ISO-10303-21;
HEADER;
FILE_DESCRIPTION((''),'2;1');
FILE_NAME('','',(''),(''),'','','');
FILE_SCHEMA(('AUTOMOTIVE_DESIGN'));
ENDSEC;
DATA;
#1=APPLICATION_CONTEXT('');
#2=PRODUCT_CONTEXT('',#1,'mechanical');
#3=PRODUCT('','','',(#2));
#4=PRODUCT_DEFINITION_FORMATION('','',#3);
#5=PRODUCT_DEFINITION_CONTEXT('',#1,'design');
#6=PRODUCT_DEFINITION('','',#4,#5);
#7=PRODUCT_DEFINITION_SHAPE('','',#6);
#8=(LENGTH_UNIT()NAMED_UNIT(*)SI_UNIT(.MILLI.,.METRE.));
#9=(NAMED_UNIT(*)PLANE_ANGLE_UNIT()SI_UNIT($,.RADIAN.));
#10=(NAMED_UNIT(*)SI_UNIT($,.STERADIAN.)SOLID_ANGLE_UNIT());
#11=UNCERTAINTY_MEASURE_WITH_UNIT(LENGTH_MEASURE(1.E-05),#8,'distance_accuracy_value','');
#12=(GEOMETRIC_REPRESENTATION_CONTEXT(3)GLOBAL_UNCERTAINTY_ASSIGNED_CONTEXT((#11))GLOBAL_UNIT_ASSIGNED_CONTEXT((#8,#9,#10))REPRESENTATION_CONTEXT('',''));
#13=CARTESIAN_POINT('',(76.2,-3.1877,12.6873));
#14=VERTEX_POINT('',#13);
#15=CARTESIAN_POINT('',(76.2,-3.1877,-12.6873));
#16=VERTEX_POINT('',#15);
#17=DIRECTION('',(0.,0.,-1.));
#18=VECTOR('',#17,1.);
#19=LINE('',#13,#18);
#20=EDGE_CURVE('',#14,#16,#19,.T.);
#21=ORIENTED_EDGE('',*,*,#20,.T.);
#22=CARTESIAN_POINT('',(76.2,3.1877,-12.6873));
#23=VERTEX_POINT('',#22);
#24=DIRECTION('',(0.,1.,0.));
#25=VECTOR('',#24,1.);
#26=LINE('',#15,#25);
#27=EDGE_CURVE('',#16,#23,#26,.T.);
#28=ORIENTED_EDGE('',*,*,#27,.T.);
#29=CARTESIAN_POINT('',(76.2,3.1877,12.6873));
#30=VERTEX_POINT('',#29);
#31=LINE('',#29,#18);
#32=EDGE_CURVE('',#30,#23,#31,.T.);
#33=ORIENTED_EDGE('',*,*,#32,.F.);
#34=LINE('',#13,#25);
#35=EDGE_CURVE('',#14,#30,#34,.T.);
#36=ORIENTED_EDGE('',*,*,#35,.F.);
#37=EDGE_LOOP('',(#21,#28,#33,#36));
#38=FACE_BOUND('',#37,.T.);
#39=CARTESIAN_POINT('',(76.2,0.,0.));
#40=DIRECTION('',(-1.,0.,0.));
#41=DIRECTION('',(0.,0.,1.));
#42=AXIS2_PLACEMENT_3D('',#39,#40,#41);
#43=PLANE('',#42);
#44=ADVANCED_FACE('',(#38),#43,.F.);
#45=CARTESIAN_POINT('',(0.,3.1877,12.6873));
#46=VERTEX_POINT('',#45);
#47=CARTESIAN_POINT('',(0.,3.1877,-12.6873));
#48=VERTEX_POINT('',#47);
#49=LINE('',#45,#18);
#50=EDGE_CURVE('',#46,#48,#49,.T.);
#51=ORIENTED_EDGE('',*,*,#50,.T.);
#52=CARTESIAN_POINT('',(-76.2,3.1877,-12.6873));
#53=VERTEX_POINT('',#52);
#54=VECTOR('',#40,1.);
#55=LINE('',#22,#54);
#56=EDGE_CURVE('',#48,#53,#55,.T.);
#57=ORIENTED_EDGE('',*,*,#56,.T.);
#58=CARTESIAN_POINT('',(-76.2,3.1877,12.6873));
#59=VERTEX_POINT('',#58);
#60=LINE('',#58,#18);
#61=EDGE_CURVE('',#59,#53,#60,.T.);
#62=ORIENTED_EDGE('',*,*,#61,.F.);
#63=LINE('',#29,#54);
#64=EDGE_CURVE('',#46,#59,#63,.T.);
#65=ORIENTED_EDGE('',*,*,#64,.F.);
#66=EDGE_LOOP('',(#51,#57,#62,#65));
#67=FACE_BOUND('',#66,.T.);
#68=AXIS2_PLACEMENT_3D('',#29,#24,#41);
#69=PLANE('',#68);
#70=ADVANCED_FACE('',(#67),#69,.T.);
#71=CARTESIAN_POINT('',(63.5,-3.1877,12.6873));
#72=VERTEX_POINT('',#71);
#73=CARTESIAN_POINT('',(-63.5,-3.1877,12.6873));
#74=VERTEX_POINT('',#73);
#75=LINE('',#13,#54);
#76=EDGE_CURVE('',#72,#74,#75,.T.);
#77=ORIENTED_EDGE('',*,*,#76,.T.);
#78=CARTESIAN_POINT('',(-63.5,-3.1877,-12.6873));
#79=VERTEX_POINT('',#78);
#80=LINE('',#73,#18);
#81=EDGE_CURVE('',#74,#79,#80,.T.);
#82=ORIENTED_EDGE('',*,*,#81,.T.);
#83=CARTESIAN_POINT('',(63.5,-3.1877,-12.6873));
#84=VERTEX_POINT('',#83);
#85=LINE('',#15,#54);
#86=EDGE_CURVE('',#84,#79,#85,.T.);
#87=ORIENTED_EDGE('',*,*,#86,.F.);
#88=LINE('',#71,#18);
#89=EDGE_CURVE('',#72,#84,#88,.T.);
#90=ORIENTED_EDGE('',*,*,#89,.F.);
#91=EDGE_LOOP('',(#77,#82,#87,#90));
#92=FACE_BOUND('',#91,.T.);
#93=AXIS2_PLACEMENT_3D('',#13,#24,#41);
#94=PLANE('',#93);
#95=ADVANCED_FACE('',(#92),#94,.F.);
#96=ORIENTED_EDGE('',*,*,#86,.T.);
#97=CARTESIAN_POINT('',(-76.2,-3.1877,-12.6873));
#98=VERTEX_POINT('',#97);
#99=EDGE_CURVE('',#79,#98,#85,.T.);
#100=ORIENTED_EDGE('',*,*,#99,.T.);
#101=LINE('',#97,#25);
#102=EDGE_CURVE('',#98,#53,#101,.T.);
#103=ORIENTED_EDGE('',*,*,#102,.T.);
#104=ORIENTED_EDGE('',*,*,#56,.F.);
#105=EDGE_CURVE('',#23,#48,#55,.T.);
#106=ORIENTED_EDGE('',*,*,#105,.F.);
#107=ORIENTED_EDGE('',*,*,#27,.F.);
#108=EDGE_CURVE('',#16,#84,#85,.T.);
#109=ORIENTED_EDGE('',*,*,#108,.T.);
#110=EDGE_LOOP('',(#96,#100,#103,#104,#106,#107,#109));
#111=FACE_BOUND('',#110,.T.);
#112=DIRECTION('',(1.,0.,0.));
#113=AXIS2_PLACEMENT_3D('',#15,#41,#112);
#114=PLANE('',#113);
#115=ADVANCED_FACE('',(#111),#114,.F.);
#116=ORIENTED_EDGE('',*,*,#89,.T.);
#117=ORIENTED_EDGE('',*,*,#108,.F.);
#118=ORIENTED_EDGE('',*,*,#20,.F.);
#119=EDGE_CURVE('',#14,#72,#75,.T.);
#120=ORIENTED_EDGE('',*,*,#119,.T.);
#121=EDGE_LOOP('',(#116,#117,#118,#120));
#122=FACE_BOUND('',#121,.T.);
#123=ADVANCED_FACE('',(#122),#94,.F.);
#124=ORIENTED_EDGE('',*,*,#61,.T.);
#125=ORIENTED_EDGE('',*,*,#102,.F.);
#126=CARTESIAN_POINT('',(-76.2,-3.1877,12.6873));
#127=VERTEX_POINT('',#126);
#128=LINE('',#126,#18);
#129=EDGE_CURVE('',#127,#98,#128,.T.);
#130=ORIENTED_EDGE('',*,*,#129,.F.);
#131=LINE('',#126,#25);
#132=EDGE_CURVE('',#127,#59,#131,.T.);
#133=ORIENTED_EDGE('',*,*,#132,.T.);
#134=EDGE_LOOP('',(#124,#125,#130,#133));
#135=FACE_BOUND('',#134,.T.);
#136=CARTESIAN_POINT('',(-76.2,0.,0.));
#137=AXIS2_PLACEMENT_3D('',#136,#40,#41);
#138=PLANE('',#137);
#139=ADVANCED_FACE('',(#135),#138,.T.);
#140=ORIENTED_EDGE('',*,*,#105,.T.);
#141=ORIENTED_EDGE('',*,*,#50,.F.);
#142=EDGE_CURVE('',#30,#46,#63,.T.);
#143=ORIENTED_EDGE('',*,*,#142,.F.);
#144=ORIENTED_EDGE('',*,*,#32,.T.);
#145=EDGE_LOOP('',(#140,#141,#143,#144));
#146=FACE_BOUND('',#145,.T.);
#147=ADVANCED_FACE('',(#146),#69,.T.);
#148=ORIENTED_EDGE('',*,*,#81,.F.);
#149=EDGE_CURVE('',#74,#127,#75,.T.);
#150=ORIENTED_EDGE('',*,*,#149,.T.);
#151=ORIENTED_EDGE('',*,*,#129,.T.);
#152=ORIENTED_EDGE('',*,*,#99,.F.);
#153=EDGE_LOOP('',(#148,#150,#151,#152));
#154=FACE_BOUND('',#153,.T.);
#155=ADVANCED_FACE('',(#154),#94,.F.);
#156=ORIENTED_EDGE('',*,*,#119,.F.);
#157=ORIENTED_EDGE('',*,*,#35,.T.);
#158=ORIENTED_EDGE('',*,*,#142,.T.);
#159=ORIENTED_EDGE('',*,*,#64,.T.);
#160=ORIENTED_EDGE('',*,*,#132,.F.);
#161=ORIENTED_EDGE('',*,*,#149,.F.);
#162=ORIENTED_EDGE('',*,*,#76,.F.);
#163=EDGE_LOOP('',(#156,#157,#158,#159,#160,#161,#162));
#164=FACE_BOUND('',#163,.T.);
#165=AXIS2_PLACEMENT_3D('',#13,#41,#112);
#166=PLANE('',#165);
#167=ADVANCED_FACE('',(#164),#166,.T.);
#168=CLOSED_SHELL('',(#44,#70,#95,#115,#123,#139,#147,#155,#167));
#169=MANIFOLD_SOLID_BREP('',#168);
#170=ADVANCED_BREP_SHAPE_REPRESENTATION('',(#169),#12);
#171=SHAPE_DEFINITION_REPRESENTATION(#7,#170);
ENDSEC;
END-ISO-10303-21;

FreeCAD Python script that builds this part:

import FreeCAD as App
import Part
import Sketcher
Q = App.Units.Quantity

doc = App.newDocument("Part")
body = doc.addObject("PartDesign::Body", "Body")

sketch1 = body.newObject("Sketcher::SketchObject", "Sketch")
sketch1.AttachmentSupport = (doc.getObject("YZ_Plane"), [""])
sketch1.MapMode = "FlatFace"
sketch1.addGeometry([
    Part.LineSegment(App.Vector(3, 13, 0), App.Vector(-3, 13, 0)),
    Part.LineSegment(App.Vector(-3, 13, 0), App.Vector(-3, -13, 0)),
    Part.LineSegment(App.Vector(-3, -13, 0), App.Vector(3, -13, 0)),
    Part.LineSegment(App.Vector(3, -13, 0), App.Vector(3, 13, 0)),
], False)
sketch1.addConstraint([
    Sketcher.Constraint("Coincident", 0, 2, 1, 1),
    Sketcher.Constraint("Coincident", 1, 2, 2, 1),
    Sketcher.Constraint("Coincident", 2, 2, 3, 1),
    Sketcher.Constraint("Coincident", 3, 2, 0, 1),
    Sketcher.Constraint("Horizontal", 0),
    Sketcher.Constraint("Vertical", 1),
    Sketcher.Constraint("Horizontal", 2),
    Sketcher.Constraint("Vertical", 3),
    Sketcher.Constraint("Symmetric", 0, 2, 2, 2, -1, 1),
    Sketcher.Constraint("DistanceX", 0, 2, 0, 1, Q("0.251 in")),
    Sketcher.Constraint("DistanceY", 1, 2, 1, 1, Q("0.999 in")),
])
pad1 = body.newObject("PartDesign::Pad", "Pad")
pad1.Profile = sketch1
pad1.Length = Q("6 in")
pad1.Midplane = True

doc.recompute()
